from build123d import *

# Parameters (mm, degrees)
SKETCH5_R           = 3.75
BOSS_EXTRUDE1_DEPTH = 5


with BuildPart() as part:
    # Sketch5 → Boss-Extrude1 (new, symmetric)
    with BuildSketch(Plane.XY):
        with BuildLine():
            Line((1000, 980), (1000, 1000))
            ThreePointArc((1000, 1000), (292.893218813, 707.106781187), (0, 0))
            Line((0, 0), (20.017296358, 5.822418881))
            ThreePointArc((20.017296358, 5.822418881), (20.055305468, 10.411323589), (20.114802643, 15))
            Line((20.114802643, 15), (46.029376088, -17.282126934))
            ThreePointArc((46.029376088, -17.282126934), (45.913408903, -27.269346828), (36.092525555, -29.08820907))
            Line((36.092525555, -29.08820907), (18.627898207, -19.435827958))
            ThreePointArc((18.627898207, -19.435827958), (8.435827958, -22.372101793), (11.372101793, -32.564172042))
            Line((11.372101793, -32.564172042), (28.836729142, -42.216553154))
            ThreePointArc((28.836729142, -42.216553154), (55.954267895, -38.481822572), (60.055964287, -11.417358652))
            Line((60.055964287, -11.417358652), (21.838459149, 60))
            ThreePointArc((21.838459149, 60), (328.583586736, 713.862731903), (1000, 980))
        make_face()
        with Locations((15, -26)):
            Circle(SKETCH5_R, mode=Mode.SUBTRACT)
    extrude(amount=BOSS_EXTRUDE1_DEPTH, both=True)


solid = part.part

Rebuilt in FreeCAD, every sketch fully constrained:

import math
import FreeCAD as App
import Part
import Sketcher

V = App.Vector
Q = App.Units.Quantity

doc = App.newDocument("Part")
body = doc.addObject("PartDesign::Body", "Body")

sketch1 = doc.addObject("Sketcher::SketchObject", "Sketch")
body.addObject(sketch1)
sketch1.AttachmentSupport = (doc.XY_Plane, [""])
sketch1.MapMode = "FlatFace"
sketch1.addGeometry([
    Part.LineSegment(V(1000, 980, 0), V(1000, 1000, 0)),
    Part.ArcOfCircle(Part.Circle(V(1000, 0, 0), V(0, 0, 1), 1000), math.radians(90), math.radians(180)),
    Part.LineSegment(V(0, 0, 0), V(20.017296, 5.822419, 0)),
    Part.ArcOfCircle(Part.Circle(V(999.999951, 0.000001, 0), V(0, 0, 1), 979.999951), math.radians(179.12299), math.radians(179.65959)),
    Part.LineSegment(V(20.114803, 15, 0), V(46.029376, -17.282127, 0)),
    Part.ArcOfCircle(Part.Circle(V(39.896639, -22.2052, 0), V(0, 0, 1), 7.864293), math.radians(-118.928629), math.radians(38.755858)),
    Part.LineSegment(V(36.092526, -29.088209, 0), V(18.627898, -19.435828, 0)),
    Part.ArcOfCircle(Part.Circle(V(15, -26, 0), V(0, 0, 1), 7.5), math.radians(61.071371), math.radians(241.071371)),
    Part.LineSegment(V(11.372102, -32.564172, 0), V(28.836729, -42.216553, 0)),
    Part.ArcOfCircle(Part.Circle(V(39.896639, -22.2052, 0), V(0, 0, 1), 22.864293), math.radians(-118.928629), math.radians(28.152531)),
    Part.LineSegment(V(60.055964, -11.417359, 0), V(21.838459, 60, 0)),
    Part.ArcOfCircle(Part.Circle(V(1000, 0, 0), V(0, 0, 1), 980), math.radians(90), math.radians(176.4899)),
    Part.Circle(V(15, -26, 0), V(0, 0, 1), 3.75),
], False)
sketch1.addConstraint([
    Sketcher.Constraint("Coincident", 0, 2, 1, 1),
    Sketcher.Constraint("Coincident", 1, 2, 2, 1),
    Sketcher.Constraint("Coincident", 2, 2, 3, 2),
    Sketcher.Constraint("Coincident", 3, 1, 4, 1),
    Sketcher.Constraint("Tangent", 4, 2, 5, 2),
    Sketcher.Constraint("Tangent", 5, 1, 6, 1),
    Sketcher.Constraint("Tangent", 6, 2, 7, 1),
    Sketcher.Constraint("Tangent", 7, 2, 8, 1),
    Sketcher.Constraint("Tangent", 8, 2, 9, 1),
    Sketcher.Constraint("Tangent", 9, 2, 10, 1),
    Sketcher.Constraint("Coincident", 10, 2, 11, 2),
    Sketcher.Constraint("Coincident", 11, 1, 0, 1),
    Sketcher.Constraint("Vertical", 0),
    Sketcher.Constraint("Coincident", 9, 3, 5, 3),
    Sketcher.Constraint("Coincident", 11, 3, 1, 3),
    Sketcher.Constraint("Coincident", 12, 3, 7, 3),
    Sketcher.Constraint("PointOnObject", 1, 3, -1),
    Sketcher.Constraint("PointOnObject", 3, 3, -1),
    Sketcher.Constraint("Parallel", 6, 8),
    Sketcher.Constraint("Vertical", 11, 3, 0, 2),
    Sketcher.Constraint("Radius", 1, Q("1000 mm")),
    Sketcher.Constraint("Radius", 11, Q("980 mm")),
    Sketcher.Constraint("Diameter", 12, Q("7.5 mm")),
    Sketcher.Constraint("Radius", 7, Q("7.5 mm")),
    Sketcher.Constraint("DistanceX", -1, 1, 1, 3, Q("1000 mm")),
    Sketcher.Constraint("DistanceX", -1, 1, 7, 3, Q("15 mm")),
    Sketcher.Constraint("DistanceY", 7, 3, -1, 1, Q("26 mm")),
    Sketcher.Constraint("DistanceY", -1, 1, 10, 2, Q("60 mm")),
    Sketcher.Constraint("Radius", 3, Q("979.999951 mm")),
    Sketcher.Constraint("Radius", 5, Q("7.864293 mm")),
    Sketcher.Constraint("DistanceY", 5, 3, -1, 1, Q("22.2052 mm")),
    Sketcher.Constraint("DistanceX", -1, 1, 6, 2, Q("18.627898 mm")),
    Sketcher.Constraint("Distance", 4, Q("41.39687 mm")),
    Sketcher.Constraint("DistanceX", -1, 1, 3, 3, Q("999.999951 mm")),
    Sketcher.Constraint("DistanceY", -1, 1, 2, 2, Q("5.822419 mm")),
    Sketcher.Constraint("Distance", 2, Q("20.846887 mm")),
])
pad1 = doc.addObject("PartDesign::Pad", "Pad")
body.addObject(pad1)
pad1.Profile = sketch1
pad1.Length = 10
pad1.Midplane = True

doc.recompute()
